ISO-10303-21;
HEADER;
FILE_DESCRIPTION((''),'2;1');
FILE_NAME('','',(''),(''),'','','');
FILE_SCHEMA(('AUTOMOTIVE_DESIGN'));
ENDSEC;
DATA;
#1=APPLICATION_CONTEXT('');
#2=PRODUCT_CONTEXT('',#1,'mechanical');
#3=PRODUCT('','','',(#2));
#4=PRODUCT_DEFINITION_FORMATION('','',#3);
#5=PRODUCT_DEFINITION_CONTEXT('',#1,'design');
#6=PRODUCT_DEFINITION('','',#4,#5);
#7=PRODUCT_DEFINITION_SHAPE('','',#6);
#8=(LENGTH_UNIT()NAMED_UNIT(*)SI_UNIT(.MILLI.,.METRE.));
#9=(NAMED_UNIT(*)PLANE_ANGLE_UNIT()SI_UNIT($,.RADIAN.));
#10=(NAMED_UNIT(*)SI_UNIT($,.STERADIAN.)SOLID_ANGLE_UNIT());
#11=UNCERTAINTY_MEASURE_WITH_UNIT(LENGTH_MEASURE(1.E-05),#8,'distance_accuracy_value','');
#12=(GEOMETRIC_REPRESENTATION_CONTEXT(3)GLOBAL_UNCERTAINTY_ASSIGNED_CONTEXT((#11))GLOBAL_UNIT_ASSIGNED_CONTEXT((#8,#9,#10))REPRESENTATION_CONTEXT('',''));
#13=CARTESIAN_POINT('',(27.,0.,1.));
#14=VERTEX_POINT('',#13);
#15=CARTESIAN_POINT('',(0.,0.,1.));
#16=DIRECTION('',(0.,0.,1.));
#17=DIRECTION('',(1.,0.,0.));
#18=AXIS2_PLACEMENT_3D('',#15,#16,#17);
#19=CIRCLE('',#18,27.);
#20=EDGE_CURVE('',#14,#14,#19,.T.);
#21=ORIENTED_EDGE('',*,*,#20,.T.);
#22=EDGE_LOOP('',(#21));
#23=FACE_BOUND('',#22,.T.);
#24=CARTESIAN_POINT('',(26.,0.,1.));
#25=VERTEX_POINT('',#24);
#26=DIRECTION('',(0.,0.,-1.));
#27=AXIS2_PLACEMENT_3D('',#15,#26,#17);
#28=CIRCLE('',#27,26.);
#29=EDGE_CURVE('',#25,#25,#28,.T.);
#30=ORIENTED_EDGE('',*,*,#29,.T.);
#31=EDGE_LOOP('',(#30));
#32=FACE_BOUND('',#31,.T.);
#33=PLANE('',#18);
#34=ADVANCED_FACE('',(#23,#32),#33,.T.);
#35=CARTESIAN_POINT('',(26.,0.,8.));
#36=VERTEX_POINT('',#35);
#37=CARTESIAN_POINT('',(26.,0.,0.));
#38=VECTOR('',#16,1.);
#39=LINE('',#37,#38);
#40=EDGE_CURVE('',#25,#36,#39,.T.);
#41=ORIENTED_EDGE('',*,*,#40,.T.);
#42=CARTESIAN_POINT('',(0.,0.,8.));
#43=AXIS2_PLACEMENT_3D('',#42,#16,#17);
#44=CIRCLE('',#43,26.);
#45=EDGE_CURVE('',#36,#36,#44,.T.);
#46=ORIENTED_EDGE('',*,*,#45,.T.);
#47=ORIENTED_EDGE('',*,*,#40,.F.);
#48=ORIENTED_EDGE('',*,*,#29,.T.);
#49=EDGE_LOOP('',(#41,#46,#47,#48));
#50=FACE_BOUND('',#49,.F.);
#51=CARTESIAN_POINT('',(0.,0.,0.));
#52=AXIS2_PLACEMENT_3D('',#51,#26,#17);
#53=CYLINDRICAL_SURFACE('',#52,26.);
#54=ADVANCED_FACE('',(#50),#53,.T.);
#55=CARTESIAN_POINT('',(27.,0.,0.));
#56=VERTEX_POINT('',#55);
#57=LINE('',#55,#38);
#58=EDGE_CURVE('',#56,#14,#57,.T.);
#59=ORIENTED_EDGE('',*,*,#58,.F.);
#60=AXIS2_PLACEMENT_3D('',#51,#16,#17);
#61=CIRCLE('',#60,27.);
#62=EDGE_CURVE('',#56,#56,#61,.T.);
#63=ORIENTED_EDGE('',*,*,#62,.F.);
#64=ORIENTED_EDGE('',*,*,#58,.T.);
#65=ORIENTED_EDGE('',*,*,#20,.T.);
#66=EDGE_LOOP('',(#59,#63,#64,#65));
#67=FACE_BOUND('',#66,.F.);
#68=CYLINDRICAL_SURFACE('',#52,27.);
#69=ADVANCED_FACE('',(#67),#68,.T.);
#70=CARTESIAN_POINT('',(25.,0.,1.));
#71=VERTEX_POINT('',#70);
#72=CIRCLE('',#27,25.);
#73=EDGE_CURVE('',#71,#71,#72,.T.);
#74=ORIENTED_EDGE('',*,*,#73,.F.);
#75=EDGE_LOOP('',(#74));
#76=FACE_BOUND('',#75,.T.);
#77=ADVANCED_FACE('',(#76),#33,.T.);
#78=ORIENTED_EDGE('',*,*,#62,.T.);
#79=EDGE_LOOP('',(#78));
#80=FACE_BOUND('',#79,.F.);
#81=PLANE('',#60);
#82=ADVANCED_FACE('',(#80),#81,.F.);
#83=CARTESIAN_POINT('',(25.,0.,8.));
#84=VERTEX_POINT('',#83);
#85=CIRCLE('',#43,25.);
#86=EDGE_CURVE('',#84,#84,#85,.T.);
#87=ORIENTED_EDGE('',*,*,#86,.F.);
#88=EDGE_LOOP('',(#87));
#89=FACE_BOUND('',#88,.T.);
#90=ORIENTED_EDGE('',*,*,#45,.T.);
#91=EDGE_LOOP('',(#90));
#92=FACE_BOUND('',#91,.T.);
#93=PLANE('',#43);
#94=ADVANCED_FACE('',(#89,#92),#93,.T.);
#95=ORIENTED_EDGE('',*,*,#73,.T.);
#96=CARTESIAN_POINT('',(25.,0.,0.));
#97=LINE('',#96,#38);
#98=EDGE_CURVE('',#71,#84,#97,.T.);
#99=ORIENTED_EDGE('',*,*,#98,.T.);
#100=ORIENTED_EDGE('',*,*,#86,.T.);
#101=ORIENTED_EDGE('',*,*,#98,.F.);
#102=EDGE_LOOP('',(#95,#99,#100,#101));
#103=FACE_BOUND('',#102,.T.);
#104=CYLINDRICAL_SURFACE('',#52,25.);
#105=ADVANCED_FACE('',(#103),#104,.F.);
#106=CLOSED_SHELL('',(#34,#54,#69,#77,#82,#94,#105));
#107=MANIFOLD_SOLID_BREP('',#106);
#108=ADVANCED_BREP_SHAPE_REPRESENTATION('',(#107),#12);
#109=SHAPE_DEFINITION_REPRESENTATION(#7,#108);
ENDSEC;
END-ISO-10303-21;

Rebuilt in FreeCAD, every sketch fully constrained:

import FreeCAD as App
import Part
import Sketcher

V = App.Vector
Q = App.Units.Quantity

doc = App.newDocument("Part")
body = doc.addObject("PartDesign::Body", "Body")

# Sketch on XY plane
sketch1 = doc.addObject("Sketcher::SketchObject", "Sketch")
body.addObject(sketch1)
sketch1.AttachmentSupport = (doc.XY_Plane, [""])
sketch1.MapMode = "FlatFace"
sketch1.addGeometry(Part.Circle(V(0, 0, 0), V(0, 0, 1), 27), False)
sketch1.addConstraint(Sketcher.Constraint("Coincident", 0, 3, -1, 1))
sketch1.addConstraint(Sketcher.Constraint("Diameter", 0, Q("54 mm")))
pad1 = doc.addObject("PartDesign::Pad", "Pad")
body.addObject(pad1)
pad1.Profile = sketch1
pad1.Length = 1

# Sketch on XY plane
sketch2 = doc.addObject("Sketcher::SketchObject", "Sketch001")
body.addObject(sketch2)
sketch2.AttachmentSupport = (doc.XY_Plane, [""])
sketch2.MapMode = "FlatFace"
sketch2.addGeometry(Part.Circle(V(0, 0, 0), V(0, 0, 1), 26), False)
sketch2.addGeometry(Part.Circle(V(0, 0, 0), V(0, 0, 1), 25), False)
sketch2.addConstraint(Sketcher.Constraint("Coincident", 0, 3, -1, 1))
sketch2.addConstraint(Sketcher.Constraint("Coincident", 1, 3, -1, 1))
sketch2.addConstraint(Sketcher.Constraint("Diameter", 0, Q("52 mm")))
sketch2.addConstraint(Sketcher.Constraint("Diameter", 1, Q("50 mm")))
pad2 = doc.addObject("PartDesign::Pad", "Pad001")
body.addObject(pad2)
pad2.Profile = sketch2
pad2.Length = 8

doc.recompute()
